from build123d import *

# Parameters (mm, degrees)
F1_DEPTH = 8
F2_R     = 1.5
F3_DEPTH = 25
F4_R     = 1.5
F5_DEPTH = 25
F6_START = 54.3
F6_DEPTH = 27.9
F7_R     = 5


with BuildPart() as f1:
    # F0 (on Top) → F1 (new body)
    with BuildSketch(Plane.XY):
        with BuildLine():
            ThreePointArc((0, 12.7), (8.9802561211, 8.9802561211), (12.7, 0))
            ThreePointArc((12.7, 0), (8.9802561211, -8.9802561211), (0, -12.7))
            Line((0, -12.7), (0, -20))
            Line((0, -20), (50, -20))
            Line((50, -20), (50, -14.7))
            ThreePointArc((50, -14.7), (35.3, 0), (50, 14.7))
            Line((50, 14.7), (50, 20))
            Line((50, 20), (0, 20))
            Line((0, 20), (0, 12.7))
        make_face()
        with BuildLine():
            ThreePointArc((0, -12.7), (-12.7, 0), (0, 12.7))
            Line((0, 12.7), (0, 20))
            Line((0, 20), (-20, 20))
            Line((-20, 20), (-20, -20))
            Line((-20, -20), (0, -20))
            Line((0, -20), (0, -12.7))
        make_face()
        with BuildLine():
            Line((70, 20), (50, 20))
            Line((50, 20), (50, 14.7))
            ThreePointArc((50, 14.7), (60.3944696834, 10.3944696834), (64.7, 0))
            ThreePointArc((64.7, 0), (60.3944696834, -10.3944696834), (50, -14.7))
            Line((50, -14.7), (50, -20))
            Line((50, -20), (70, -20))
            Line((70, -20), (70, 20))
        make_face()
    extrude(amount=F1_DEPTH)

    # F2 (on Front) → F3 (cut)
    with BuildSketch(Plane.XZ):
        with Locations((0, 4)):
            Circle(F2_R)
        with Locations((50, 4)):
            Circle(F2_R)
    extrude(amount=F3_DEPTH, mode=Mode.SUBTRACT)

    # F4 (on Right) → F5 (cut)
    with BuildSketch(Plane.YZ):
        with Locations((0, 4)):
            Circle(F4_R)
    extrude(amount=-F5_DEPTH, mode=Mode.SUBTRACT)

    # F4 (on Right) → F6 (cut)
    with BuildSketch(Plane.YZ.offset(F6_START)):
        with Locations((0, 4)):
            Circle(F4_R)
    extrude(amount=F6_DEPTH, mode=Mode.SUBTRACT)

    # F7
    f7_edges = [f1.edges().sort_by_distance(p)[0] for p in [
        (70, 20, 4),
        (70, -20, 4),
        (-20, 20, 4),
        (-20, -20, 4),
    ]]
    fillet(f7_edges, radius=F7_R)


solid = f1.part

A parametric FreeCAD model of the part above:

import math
import FreeCAD as App
import Part
import Sketcher

V = App.Vector


def edges_at(feature, points):
    """Names of the edges that pass closest to the given points."""
    edges = feature.Shape.Edges
    near = lambda p: min(range(len(edges)), key=lambda i: edges[i].distToShape(Part.Vertex(*p))[0])
    return sorted({f"Edge{near(p) + 1}" for p in points})


def add_polygon(sketch, points):
    """Adds a closed chain of lines whose ends are joined by coincident constraints."""
    first, n = sketch.GeometryCount, len(points)
    for a, b in zip(points, points[1:] + points[:1]):
        sketch.addGeometry(Part.LineSegment(App.Vector(*a, 0), App.Vector(*b, 0)), False)
    for i in range(n):
        sketch.addConstraint(Sketcher.Constraint("Coincident", first + i, 2, first + (i + 1) % n, 1))

doc = App.newDocument("Part")
body = doc.addObject("PartDesign::Body", "Body")

sketch1 = body.newObject("Sketcher::SketchObject", "Sketch")
sketch1.AttachmentSupport = (doc.getObject("XY_Plane"), [""])
sketch1.MapMode = "FlatFace"
add_polygon(sketch1, [(-20, 20), (-20, -20), (70, -20), (70, 20)])
sketch1.addGeometry(Part.ArcOfCircle(Part.Circle(V(50, 0, 0), V(0, 0, 1), 14.7), math.radians(90), math.radians(270)), False)
sketch1.addGeometry(Part.ArcOfCircle(Part.Circle(V(50, 0, 0), V(0, 0, 1), 14.7), math.radians(0), math.radians(90)), False)
sketch1.addGeometry(Part.ArcOfCircle(Part.Circle(V(50, 0, 0), V(0, 0, 1), 14.7), math.radians(-90), math.radians(0)), False)
sketch1.addGeometry(Part.ArcOfCircle(Part.Circle(V(0, 0, 0), V(0, 0, 1), 12.7), math.radians(-90), math.radians(0)), False)
sketch1.addGeometry(Part.ArcOfCircle(Part.Circle(V(0, 0, 0), V(0, 0, 1), 12.7), math.radians(90), math.radians(270)), False)
sketch1.addGeometry(Part.ArcOfCircle(Part.Circle(V(0, 0, 0), V(0, 0, 1), 12.7), math.radians(0), math.radians(90)), False)
sketch1.addConstraint([
    Sketcher.Constraint("Tangent", 4, 1, 5, 2),
    Sketcher.Constraint("Tangent", 5, 1, 6, 2),
    Sketcher.Constraint("Tangent", 6, 1, 4, 2),
    Sketcher.Constraint("Tangent", 7, 1, 8, 2),
    Sketcher.Constraint("Tangent", 8, 1, 9, 2),
    Sketcher.Constraint("Tangent", 9, 1, 7, 2),
    Sketcher.Constraint("Vertical", 0),
    Sketcher.Constraint("Horizontal", 1),
    Sketcher.Constraint("Vertical", 2),
    Sketcher.Constraint("Horizontal", 3),
    Sketcher.Constraint("Coincident", 7, 3, -1, 1),
    Sketcher.Constraint("Symmetric", 4, 1, 6, 1, -1),
    Sketcher.Constraint("PointOnObject", 5, 1, -1),
    Sketcher.Constraint("PointOnObject", 7, 1, -2),
    Sketcher.Constraint("PointOnObject", 8, 1, -2),
    Sketcher.Constraint("PointOnObject", 9, 1, -1),
    Sketcher.Constraint("Vertical", 6, 3, 4, 1),
    Sketcher.Constraint("Radius", 4, 14.7),
    Sketcher.Constraint("Radius", 7, 12.7),
    Sketcher.Constraint("DistanceX", 1, 1, 1, 2, 90.0),
    Sketcher.Constraint("DistanceY", 0, 2, 0, 1, 40.0),
    Sketcher.Constraint("DistanceX", -1, 1, 4, 3, 50.0),
    Sketcher.Constraint("DistanceX", 0, 2, -1, 1, 20.0),
    Sketcher.Constraint("DistanceY", 0, 2, -1, 1, 20.0),
])
pad1 = body.newObject("PartDesign::Pad", "Pad")
pad1.Profile = sketch1
pad1.Length = 8

sketch2 = body.newObject("Sketcher::SketchObject", "Sketch001")
sketch2.AttachmentSupport = (doc.getObject("XZ_Plane"), [""])
sketch2.MapMode = "FlatFace"
sketch2.addGeometry([
    Part.Circle(V(0, 4, 0), V(0, 0, 1), 1.5),
    Part.Circle(V(50, 4, 0), V(0, 0, 1), 1.5),
], False)
sketch2.addConstraint([
    Sketcher.Constraint("Equal", 0, 1),
    Sketcher.Constraint("PointOnObject", 0, 3, -2),
    Sketcher.Constraint("Horizontal", 0, 3, 1, 3),
    Sketcher.Constraint("Diameter", 0, 3.0),
    Sketcher.Constraint("DistanceY", -1, 1, 0, 3, 4.0),
    Sketcher.Constraint("DistanceX", -1, 1, 1, 3, 50.0),
])
pocket1 = body.newObject("PartDesign::Pocket", "Pocket")
pocket1.Profile = sketch2
pocket1.Length = 25
pocket1.Reversed = True

sketch3 = body.newObject("Sketcher::SketchObject", "Sketch002")
sketch3.AttachmentSupport = (doc.getObject("YZ_Plane"), [""])
sketch3.MapMode = "FlatFace"
sketch3.addGeometry(Part.Circle(V(0, 4, 0), V(0, 0, 1), 1.5), False)
sketch3.addConstraint([
    Sketcher.Constraint("PointOnObject", 0, 3, -2),
    Sketcher.Constraint("Diameter", 0, 3.0),
    Sketcher.Constraint("DistanceY", -1, 1, 0, 3, 4.0),
])
pocket2 = body.newObject("PartDesign::Pocket", "Pocket001")
pocket2.Profile = sketch3
pocket2.Length = 25

sketch4 = body.newObject("Sketcher::SketchObject", "Sketch003")
sketch4.AttachmentSupport = (doc.getObject("YZ_Plane"), [""])
sketch4.MapMode = "FlatFace"
sketch4.AttachmentOffset = App.Placement(V(0, 0, 54.3), App.Rotation())
sketch4.addGeometry(Part.Circle(V(0, 4, 0), V(0, 0, 1), 1.5), False)
sketch4.addConstraint([
    Sketcher.Constraint("PointOnObject", 0, 3, -2),
    Sketcher.Constraint("Diameter", 0, 3.0),
    Sketcher.Constraint("DistanceY", -1, 1, 0, 3, 4.0),
])
pocket3 = body.newObject("PartDesign::Pocket", "Pocket002")
pocket3.Profile = sketch4
pocket3.Length = 27.9
pocket3.Reversed = True
doc.recompute()

fillet = body.newObject("PartDesign::Fillet", "Fillet")
fillet.Base = (pocket3, edges_at(pocket3, [
    (70, 20, 4),
    (70, -20, 4),
    (-20, 20, 4),
    (-20, -20, 4),
]))
fillet.Radius = 5

doc.recompute()
